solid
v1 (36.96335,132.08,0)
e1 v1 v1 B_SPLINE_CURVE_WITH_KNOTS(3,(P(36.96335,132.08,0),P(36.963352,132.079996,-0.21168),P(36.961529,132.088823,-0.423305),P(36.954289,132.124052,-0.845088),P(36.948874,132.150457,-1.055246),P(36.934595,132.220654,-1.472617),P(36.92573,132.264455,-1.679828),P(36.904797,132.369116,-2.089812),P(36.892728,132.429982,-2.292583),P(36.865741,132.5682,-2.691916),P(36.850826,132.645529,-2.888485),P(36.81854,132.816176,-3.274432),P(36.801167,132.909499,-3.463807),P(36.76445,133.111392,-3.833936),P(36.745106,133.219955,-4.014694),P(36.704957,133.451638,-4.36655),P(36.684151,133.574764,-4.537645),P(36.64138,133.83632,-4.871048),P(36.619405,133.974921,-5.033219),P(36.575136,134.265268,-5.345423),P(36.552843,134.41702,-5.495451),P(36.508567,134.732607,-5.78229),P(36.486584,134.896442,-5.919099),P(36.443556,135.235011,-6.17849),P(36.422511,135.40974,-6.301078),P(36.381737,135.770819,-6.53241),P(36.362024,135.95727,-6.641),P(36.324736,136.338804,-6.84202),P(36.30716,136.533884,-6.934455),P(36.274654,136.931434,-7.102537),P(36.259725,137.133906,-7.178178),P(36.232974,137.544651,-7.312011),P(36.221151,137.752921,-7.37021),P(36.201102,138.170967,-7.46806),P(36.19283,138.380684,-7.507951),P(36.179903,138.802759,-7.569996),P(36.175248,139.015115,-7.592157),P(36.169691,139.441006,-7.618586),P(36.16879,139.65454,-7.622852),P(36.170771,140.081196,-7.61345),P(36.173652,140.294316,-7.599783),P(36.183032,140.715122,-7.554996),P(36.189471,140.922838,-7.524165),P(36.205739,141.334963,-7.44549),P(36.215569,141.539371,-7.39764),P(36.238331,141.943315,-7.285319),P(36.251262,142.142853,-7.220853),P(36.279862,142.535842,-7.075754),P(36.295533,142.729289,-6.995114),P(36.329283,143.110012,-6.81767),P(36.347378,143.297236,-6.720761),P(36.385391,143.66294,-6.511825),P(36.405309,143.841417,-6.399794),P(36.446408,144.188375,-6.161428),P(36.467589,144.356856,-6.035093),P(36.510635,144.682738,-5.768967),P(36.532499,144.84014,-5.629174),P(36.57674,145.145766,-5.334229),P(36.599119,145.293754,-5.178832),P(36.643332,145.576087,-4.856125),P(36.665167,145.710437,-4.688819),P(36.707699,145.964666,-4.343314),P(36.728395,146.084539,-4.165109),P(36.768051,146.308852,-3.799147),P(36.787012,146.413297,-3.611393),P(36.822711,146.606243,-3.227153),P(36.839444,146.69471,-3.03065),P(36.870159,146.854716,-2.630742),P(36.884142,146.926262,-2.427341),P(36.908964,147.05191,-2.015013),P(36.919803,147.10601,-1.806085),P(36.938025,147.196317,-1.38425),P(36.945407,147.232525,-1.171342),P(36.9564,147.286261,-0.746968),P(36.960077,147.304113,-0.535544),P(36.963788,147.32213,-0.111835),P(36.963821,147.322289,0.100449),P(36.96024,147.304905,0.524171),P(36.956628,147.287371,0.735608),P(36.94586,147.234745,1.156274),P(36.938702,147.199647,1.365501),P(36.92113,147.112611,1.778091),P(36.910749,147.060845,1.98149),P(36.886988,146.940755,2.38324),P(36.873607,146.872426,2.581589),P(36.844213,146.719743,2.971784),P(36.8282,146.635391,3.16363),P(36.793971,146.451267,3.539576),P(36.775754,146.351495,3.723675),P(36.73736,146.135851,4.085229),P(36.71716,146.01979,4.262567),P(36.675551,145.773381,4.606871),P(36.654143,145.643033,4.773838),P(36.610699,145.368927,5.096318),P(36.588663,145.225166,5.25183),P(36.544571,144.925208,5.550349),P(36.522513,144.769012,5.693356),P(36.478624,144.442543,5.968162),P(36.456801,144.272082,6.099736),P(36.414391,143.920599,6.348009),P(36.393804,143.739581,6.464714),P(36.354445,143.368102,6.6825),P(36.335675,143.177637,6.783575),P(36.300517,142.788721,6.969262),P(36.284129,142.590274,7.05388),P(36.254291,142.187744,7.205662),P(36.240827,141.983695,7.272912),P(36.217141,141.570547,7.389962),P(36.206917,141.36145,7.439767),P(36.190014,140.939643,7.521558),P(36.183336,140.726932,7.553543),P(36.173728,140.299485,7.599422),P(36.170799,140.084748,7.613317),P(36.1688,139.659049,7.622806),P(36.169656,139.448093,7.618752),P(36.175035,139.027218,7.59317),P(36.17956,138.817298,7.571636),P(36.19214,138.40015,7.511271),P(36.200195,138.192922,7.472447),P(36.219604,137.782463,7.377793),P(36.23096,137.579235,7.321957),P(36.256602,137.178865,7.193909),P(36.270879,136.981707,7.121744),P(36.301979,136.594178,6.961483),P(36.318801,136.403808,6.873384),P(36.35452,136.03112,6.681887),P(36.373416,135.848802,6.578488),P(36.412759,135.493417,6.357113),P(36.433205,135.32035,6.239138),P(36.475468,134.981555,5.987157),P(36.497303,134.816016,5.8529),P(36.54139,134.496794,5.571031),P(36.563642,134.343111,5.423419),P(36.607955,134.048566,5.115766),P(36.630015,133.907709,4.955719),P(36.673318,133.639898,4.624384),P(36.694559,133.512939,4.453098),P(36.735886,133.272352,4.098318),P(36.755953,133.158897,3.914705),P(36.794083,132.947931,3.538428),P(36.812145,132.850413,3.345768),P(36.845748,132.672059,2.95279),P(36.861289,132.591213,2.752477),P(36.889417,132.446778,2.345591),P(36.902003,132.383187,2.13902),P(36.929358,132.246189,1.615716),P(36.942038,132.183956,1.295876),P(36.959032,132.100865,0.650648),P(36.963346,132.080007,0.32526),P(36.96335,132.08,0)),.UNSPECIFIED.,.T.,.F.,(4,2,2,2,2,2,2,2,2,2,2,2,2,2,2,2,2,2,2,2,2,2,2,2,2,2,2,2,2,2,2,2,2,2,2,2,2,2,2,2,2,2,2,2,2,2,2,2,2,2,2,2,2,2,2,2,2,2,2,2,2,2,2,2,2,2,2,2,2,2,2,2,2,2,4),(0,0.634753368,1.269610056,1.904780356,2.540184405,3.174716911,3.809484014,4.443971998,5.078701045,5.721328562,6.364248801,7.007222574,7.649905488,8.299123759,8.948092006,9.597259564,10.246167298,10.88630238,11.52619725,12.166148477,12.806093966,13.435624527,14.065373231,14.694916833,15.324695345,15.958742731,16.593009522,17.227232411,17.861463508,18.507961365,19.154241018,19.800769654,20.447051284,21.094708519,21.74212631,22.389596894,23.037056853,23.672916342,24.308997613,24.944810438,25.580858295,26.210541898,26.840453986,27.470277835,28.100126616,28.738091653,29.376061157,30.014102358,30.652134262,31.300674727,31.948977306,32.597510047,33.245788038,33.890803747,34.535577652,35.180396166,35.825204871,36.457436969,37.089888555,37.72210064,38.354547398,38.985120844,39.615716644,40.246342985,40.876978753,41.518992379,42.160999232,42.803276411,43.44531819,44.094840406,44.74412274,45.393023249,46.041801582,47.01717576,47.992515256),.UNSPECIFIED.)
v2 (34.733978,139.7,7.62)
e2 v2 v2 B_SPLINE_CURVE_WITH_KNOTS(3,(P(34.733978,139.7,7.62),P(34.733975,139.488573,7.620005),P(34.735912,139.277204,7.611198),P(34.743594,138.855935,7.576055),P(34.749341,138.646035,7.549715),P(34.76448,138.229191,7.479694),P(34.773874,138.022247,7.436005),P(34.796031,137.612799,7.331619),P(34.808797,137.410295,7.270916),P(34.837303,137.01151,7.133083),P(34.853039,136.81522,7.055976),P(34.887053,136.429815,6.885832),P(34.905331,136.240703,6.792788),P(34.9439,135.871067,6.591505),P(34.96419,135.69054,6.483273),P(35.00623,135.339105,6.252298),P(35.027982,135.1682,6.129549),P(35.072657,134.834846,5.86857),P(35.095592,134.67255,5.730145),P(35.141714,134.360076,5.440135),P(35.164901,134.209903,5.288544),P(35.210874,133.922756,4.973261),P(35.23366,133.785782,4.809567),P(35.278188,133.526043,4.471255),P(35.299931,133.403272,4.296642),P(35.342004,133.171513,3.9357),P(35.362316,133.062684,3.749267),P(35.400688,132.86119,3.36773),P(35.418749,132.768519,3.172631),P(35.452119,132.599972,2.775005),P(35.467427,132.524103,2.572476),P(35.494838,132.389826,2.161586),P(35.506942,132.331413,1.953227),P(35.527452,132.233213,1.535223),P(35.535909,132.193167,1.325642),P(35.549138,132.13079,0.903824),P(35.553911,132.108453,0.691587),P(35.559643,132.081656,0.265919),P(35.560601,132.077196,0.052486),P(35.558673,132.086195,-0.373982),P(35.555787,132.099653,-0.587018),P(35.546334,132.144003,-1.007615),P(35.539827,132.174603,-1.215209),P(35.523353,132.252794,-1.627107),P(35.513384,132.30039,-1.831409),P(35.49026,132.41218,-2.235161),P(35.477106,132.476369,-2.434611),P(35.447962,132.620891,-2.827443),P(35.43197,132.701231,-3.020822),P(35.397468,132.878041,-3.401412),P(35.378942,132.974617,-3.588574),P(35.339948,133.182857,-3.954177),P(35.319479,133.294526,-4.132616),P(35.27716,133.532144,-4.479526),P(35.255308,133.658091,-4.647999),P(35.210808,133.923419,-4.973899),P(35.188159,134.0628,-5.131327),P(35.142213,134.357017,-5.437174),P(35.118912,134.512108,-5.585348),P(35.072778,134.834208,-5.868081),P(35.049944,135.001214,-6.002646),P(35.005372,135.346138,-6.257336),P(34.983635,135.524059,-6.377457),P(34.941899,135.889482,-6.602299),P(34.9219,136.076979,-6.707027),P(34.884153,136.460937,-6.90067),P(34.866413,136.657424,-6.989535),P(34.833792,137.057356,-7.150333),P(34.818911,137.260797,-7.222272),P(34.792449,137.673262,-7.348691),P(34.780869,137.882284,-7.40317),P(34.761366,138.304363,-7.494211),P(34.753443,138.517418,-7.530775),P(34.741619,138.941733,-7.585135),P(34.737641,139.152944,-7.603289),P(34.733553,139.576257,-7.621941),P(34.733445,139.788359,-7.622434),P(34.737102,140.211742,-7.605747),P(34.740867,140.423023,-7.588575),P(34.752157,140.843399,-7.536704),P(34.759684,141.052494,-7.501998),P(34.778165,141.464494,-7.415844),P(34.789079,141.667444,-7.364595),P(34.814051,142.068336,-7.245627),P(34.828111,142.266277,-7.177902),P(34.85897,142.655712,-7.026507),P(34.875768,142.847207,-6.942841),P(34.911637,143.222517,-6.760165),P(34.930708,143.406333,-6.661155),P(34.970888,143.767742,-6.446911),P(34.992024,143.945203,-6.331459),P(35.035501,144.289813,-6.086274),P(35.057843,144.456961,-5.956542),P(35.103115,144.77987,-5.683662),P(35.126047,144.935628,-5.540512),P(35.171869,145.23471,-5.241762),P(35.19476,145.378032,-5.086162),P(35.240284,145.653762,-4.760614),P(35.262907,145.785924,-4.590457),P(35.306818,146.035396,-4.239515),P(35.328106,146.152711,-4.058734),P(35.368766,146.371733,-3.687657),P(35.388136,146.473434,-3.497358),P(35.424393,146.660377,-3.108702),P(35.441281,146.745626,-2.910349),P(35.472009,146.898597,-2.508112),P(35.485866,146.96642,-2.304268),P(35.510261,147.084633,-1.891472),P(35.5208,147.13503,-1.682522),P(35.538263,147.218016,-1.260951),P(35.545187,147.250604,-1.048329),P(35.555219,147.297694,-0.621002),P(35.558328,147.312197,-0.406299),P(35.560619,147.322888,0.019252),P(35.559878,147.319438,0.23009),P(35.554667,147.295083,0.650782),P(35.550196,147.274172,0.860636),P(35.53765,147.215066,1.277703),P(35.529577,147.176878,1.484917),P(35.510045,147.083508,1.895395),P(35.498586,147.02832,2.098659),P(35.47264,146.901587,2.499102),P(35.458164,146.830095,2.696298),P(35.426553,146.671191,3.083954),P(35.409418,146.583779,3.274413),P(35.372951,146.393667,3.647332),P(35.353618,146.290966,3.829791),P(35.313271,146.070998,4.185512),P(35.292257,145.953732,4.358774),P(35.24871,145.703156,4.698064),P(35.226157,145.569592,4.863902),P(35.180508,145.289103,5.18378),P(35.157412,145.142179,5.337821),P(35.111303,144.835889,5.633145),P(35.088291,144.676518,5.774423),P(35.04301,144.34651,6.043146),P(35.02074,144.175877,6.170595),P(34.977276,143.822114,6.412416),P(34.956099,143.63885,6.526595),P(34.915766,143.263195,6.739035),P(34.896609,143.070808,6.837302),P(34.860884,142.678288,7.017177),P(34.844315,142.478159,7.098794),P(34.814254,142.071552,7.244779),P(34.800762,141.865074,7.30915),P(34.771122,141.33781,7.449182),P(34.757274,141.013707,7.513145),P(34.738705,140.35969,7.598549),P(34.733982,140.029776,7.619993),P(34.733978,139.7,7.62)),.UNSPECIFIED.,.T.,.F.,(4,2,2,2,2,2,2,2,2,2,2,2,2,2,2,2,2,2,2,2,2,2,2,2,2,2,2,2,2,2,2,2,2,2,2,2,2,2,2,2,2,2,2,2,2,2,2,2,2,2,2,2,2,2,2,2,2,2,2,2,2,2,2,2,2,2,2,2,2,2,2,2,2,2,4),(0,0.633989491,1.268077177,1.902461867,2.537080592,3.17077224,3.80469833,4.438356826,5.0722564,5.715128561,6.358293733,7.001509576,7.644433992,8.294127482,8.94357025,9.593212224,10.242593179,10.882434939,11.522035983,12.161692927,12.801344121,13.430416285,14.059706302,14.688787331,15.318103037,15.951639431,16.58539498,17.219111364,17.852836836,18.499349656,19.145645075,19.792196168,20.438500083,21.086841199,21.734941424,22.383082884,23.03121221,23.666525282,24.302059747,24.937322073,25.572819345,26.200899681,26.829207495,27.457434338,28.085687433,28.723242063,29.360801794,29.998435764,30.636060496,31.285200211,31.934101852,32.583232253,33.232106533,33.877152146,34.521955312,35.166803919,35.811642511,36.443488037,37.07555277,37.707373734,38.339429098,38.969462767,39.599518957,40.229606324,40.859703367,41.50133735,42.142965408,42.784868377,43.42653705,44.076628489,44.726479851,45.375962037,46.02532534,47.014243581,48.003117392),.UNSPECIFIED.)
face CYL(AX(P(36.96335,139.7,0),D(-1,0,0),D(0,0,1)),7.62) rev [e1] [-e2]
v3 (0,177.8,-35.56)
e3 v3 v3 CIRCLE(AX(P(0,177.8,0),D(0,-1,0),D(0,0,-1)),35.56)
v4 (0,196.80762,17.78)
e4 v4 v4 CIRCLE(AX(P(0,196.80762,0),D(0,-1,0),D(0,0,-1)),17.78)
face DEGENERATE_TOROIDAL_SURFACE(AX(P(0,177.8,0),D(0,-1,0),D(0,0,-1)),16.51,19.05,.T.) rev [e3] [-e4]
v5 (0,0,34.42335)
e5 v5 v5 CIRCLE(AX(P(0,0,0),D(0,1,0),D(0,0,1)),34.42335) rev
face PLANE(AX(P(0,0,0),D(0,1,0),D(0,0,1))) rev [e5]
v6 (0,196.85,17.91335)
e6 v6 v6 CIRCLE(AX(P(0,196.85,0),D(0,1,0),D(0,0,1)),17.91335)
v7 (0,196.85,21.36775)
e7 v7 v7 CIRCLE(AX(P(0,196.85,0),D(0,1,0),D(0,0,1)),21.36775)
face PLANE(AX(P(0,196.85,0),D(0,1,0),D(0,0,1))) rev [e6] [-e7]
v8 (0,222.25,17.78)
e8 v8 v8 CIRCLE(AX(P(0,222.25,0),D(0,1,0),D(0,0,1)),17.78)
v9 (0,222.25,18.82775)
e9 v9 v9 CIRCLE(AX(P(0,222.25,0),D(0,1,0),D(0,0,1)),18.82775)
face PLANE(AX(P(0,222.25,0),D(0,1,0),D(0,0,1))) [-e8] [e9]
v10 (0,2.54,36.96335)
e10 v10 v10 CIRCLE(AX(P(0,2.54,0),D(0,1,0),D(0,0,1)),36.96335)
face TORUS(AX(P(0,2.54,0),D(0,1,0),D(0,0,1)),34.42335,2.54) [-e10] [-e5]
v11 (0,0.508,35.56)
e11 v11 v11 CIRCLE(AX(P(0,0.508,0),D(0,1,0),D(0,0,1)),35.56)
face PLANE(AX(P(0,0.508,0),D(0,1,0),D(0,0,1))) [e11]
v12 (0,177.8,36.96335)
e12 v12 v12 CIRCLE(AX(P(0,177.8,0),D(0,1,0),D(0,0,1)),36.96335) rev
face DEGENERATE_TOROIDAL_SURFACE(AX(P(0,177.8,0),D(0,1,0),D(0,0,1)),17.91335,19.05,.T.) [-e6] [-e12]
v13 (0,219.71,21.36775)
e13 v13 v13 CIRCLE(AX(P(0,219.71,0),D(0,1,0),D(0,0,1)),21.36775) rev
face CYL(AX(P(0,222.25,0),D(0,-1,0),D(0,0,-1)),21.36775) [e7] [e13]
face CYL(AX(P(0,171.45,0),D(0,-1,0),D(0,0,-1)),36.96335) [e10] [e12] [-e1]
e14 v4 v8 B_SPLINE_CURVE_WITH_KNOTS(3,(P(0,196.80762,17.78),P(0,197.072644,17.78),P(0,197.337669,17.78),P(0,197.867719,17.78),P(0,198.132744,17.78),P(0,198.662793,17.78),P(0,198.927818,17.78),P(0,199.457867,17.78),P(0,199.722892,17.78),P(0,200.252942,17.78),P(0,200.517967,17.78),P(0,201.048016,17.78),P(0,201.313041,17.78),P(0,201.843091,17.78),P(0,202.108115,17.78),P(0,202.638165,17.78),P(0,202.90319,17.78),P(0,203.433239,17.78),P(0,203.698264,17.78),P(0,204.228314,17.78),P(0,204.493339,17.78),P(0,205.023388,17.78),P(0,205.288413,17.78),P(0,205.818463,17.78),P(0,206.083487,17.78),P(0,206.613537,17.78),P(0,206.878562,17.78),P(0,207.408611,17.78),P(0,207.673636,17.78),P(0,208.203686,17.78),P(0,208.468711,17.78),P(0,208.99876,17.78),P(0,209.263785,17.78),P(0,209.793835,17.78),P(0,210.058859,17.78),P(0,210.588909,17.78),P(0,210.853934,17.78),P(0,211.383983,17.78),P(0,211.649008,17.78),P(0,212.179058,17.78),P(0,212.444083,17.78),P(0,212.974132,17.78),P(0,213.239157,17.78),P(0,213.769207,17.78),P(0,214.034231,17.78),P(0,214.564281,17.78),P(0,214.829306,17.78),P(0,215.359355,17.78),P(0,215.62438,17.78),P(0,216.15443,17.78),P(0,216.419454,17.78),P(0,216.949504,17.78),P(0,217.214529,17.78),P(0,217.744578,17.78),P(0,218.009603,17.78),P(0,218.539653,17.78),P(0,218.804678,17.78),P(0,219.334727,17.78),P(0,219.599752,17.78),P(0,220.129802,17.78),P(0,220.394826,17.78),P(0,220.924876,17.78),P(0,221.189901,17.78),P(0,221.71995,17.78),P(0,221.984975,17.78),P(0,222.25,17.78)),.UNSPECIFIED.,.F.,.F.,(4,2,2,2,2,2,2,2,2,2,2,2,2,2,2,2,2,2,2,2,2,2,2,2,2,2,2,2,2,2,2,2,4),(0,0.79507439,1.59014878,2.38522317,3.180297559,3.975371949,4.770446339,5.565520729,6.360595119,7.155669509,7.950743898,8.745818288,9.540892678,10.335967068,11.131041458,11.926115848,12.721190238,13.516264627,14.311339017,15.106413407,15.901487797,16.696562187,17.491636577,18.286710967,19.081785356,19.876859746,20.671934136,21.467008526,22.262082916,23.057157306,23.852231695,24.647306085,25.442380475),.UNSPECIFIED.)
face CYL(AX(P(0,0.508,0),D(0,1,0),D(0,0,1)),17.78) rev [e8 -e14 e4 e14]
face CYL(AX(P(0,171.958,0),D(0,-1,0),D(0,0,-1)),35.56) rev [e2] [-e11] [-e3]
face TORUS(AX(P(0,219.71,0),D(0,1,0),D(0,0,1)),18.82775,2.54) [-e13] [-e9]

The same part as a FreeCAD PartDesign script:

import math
import FreeCAD as App
import Part
import Sketcher
from FreeCAD import Vector
Q = App.Units.Quantity


def edges_at(feature, points):
    """Names of the edges that pass closest to the given points."""
    edges = feature.Shape.Edges
    near = lambda p: min(range(len(edges)), key=lambda i: edges[i].distToShape(Part.Vertex(*p))[0])
    return sorted({f"Edge{near(p) + 1}" for p in points})

doc = App.newDocument("Part")
body = doc.addObject("PartDesign::Body", "Body")

# Sketch on XZ plane
sketch1 = doc.addObject("Sketcher::SketchObject", "Sketch")
body.addObject(sketch1)
sketch1.AttachmentSupport = (doc.XZ_Plane, [""])
sketch1.MapMode = "FlatFace"
sketch1.addGeometry(Part.Circle(Vector(0, 0, 0), Vector(0, 0, 1), 36.96335), False)
sketch1.addConstraint([
    Sketcher.Constraint("Coincident", 0, 3, -1, 1),
    Sketcher.Constraint("Diameter", 0, Q("2.9105 in")),
])
pad1 = doc.addObject("PartDesign::Pad", "Pad")
body.addObject(pad1)
pad1.Profile = sketch1
pad1.Length = Q("6.75 in")
pad1.Reversed = True
doc.recompute()

fillet = doc.addObject("PartDesign::Fillet", "Fillet")
body.addObject(fillet)
fillet.Base = (pad1, edges_at(pad1, [(0, 0, -36.963)]))
fillet.Radius = Q("0.1 in")

# Sketch on XZ plane
sketch2 = doc.addObject("Sketcher::SketchObject", "Sketch001")
body.addObject(sketch2)
sketch2.AttachmentSupport = (doc.XZ_Plane, [""])
sketch2.MapMode = "FlatFace"
sketch2.AttachmentOffset = App.Placement(Vector(0, 0, -6.75 * 25.4), App.Rotation())
sketch2.addGeometry(Part.Circle(Vector(0, 0, 0), Vector(0, 0, 1), 36.96335), False)
sketch2.addConstraint([
    Sketcher.Constraint("Coincident", 0, 3, -1, 1),
    Sketcher.Constraint("Diameter", 0, Q("2.9105 in")),
])
pad2 = doc.addObject("PartDesign::Pad", "Pad001")
body.addObject(pad2)
pad2.Profile = sketch2
pad2.Length = Q("1 in")
pad2.Reversed = True
doc.recompute()

fillet2 = doc.addObject("PartDesign::Fillet", "Fillet001")
body.addObject(fillet2)
fillet2.Base = (pad2, edges_at(pad2, [(0, 196.85, -36.963)]))
fillet2.Radius = Q("0.75 in")

# Sketch on XZ plane
sketch3 = doc.addObject("Sketcher::SketchObject", "Sketch002")
body.addObject(sketch3)
sketch3.AttachmentSupport = (doc.XZ_Plane, [""])
sketch3.MapMode = "FlatFace"
sketch3.AttachmentOffset = App.Placement(Vector(0, 0, -7.75 * 25.4), App.Rotation())
sketch3.addGeometry(Part.Circle(Vector(0, 0, 0), Vector(0, 0, 1), 21.36775), False)
sketch3.addConstraint([
    Sketcher.Constraint("Coincident", 0, 3, -1, 1),
    Sketcher.Constraint("Diameter", 0, Q("1.6825 in")),
])
pad3 = doc.addObject("PartDesign::Pad", "Pad002")
body.addObject(pad3)
pad3.Profile = sketch3
pad3.Length = Q("1 in")
pad3.Reversed = True
doc.recompute()

fillet3 = doc.addObject("PartDesign::Fillet", "Fillet002")
body.addObject(fillet3)
fillet3.Base = (pad3, edges_at(pad3, [(0, 222.25, -21.368)]))
fillet3.Radius = Q("0.1 in")

# Sketch on XZ plane
sketch4 = doc.addObject("Sketcher::SketchObject", "Sketch003")
body.addObject(sketch4)
sketch4.AttachmentSupport = (doc.XZ_Plane, [""])
sketch4.MapMode = "FlatFace"
sketch4.AttachmentOffset = App.Placement(Vector(0, 0, -8.75 * 25.4), App.Rotation())
sketch4.addGeometry(Part.Circle(Vector(0, 0, 0), Vector(0, 0, 1), 17.78), False)
sketch4.addConstraint([
    Sketcher.Constraint("Coincident", 0, 3, -1, 1),
    Sketcher.Constraint("Diameter", 0, Q("1.4 in")),
])
pocket1 = doc.addObject("PartDesign::Pocket", "Pocket")
body.addObject(pocket1)
pocket1.Profile = sketch4
pocket1.Length = Q("8.73 in")
pocket1.Reversed = True

# Sketch on XZ plane
sketch5 = doc.addObject("Sketcher::SketchObject", "Sketch004")
body.addObject(sketch5)
sketch5.AttachmentSupport = (doc.XZ_Plane, [""])
sketch5.MapMode = "FlatFace"
sketch5.AttachmentOffset = App.Placement(Vector(0, 0, -0.02 * 25.4), App.Rotation())
sketch5.addGeometry(Part.Circle(Vector(0, 0, 0), Vector(0, 0, 1), 35.56), False)
sketch5.addConstraint([
    Sketcher.Constraint("Coincident", 0, 3, -1, 1),
    Sketcher.Constraint("Diameter", 0, Q("2.8 in")),
])
pocket2 = doc.addObject("PartDesign::Pocket", "Pocket001")
body.addObject(pocket2)
pocket2.Profile = sketch5
pocket2.Length = Q("6.75 in")

# Sketch on XY plane
sketch6 = doc.addObject("Sketcher::SketchObject", "Sketch005")
body.addObject(sketch6)
sketch6.AttachmentSupport = (doc.XY_Plane, [""])
sketch6.MapMode = "FlatFace"
sketch6.addGeometry([
    Part.LineSegment(Vector(0, 171.958, 0), Vector(35.56, 171.958, 0)),  # 0
    Part.LineSegment(Vector(35.56, 171.958, 0), Vector(35.56, 177.8, 0)),  # 1
    Part.ArcOfCircle(Part.Circle(Vector(16.51, 177.8, 0), Vector(0, 0, 1), 19.05), math.radians(0), math.radians(90)),  # 2
    Part.LineSegment(Vector(16.51, 196.85, 0), Vector(0, 196.85, 0)),  # 3
    Part.LineSegment(Vector(0, 196.85, 0), Vector(0, 171.958, 0)),  # 4
], False)
sketch6.addConstraint([
    Sketcher.Constraint("Coincident", 0, 2, 1, 1),
    Sketcher.Constraint("Tangent", 1, 2, 2, 1),
    Sketcher.Constraint("Tangent", 2, 2, 3, 1),
    Sketcher.Constraint("Coincident", 3, 2, 4, 1),
    Sketcher.Constraint("Coincident", 4, 2, 0, 1),
    Sketcher.Constraint("Horizontal", 0),
    Sketcher.Constraint("Vertical", 1),
    Sketcher.Constraint("Horizontal", 3),
    Sketcher.Constraint("Vertical", 4),
    Sketcher.Constraint("PointOnObject", 3, 2, -2),
    Sketcher.Constraint("Radius", 2, Q("0.75 in")),
    Sketcher.Constraint("DistanceX", 0, 1, 0, 2, Q("1.4 in")),
    Sketcher.Constraint("DistanceY", -1, 1, 2, 3, Q("7 in")),
    Sketcher.Constraint("DistanceY", 1, 1, 1, 2, Q("0.23 in")),
])
groove = doc.addObject("PartDesign::Groove", "Groove")
body.addObject(groove)
groove.Profile = sketch6
groove.ReferenceAxis = (sketch6, ["V_Axis"])
groove.Angle = 360

# Sketch on YZ plane
sketch7 = doc.addObject("Sketcher::SketchObject", "Sketch006")
body.addObject(sketch7)
sketch7.AttachmentSupport = (doc.YZ_Plane, [""])
sketch7.MapMode = "FlatFace"
sketch7.addGeometry(Part.Circle(Vector(139.7, 0, 0), Vector(0, 0, 1), 7.62), False)
sketch7.addConstraint([
    Sketcher.Constraint("PointOnObject", 0, 3, -1),
    Sketcher.Constraint("Diameter", 0, Q("0.6 in")),
    Sketcher.Constraint("DistanceX", -1, 1, 0, 3, Q("5.5 in")),
])
pocket3 = doc.addObject("PartDesign::Pocket", "Pocket002")
body.addObject(pocket3)
pocket3.Profile = sketch7
pocket3.Type = "TwoLengths"
pocket3.Length = 229.314785
pocket3.Length2 = Q("0.1 in")
pocket3.Reversed = True

doc.recompute()
